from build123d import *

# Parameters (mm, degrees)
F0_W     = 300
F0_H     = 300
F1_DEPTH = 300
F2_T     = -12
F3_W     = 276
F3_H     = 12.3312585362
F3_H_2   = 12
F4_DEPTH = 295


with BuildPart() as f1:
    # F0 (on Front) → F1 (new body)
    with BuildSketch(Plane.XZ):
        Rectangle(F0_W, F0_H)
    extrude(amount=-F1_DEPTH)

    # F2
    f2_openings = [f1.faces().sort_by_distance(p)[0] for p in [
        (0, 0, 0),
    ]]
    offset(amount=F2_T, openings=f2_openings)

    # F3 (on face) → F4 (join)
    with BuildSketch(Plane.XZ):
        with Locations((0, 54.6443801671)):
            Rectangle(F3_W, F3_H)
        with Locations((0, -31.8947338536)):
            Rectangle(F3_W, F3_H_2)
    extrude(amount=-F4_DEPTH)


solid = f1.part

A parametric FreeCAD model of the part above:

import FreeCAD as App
import Part
import Sketcher
from FreeCAD import Vector
Q = App.Units.Quantity


def faces_at(feature, points):
    """Names of the faces that lie closest to the given points."""
    faces = feature.Shape.Faces
    near = lambda p: min(range(len(faces)), key=lambda i: faces[i].distToShape(Part.Vertex(*p))[0])
    return sorted({f"Face{near(p) + 1}" for p in points})


def add_polygon(sketch, points):
    """Adds a closed chain of lines whose ends are joined by coincident constraints."""
    first, n = sketch.GeometryCount, len(points)
    for a, b in zip(points, points[1:] + points[:1]):
        sketch.addGeometry(Part.LineSegment(App.Vector(*a, 0), App.Vector(*b, 0)), False)
    for i in range(n):
        sketch.addConstraint(Sketcher.Constraint("Coincident", first + i, 2, first + (i + 1) % n, 1))

doc = App.newDocument("Part")
params = doc.addObject("Spreadsheet::Sheet", "Params")
for row, (alias, value) in enumerate([
    ("sketch1_width", "300 mm"),
    ("pad1_length", "300 mm"),
    ("thickness_wall", "12 mm"),
    ("sketch2_width", "276 mm"),
    ("sketch2_height", "12 mm"),
    ("pad2_length", "295 mm"),
], start=1):
    params.set(f"A{row}", alias)
    params.set(f"B{row}", "=" + value)
    params.setAlias(f"B{row}", alias)

body = doc.addObject("PartDesign::Body", "Body")

sketch1 = doc.addObject("Sketcher::SketchObject", "Sketch")
body.addObject(sketch1)
sketch1.AttachmentSupport = (doc.XZ_Plane, [""])
sketch1.MapMode = "FlatFace"
add_polygon(sketch1, [(-150, 150), (-150, -150), (150, -150), (150, 150)])
sketch1.addConstraint(Sketcher.Constraint("Vertical", 0))
sketch1.addConstraint(Sketcher.Constraint("Horizontal", 1))
sketch1.addConstraint(Sketcher.Constraint("Vertical", 2))
sketch1.addConstraint(Sketcher.Constraint("Horizontal", 3))
sketch1.addConstraint(Sketcher.Constraint("Symmetric", 0, 2, 2, 2, -1, 1))
sketch1.addConstraint(Sketcher.Constraint("Equal", 3, 0))
sketch1.addConstraint(Sketcher.Constraint("DistanceX", 1, 1, 1, 2, Q("300 mm")))
sketch1.setExpression("Constraints[10]", "Params.sketch1_width")
pad1 = doc.addObject("PartDesign::Pad", "Pad")
body.addObject(pad1)
pad1.Profile = sketch1
pad1.setExpression("Length", "Params.pad1_length")
pad1.Reversed = True
doc.recompute()

thickness = doc.addObject("PartDesign::Thickness", "Thickness")
body.addObject(thickness)
thickness.Base = (pad1, faces_at(pad1, [(0, 0, 0)]))
thickness.setExpression("Value", "Params.thickness_wall")
thickness.Reversed = True
thickness.Join = "Arc"

sketch2 = doc.addObject("Sketcher::SketchObject", "Sketch001")
body.addObject(sketch2)
sketch2.AttachmentSupport = (doc.XZ_Plane, [""])
sketch2.MapMode = "FlatFace"
add_polygon(sketch2, [(-138, 61), (-138, 48), (138, 48), (138, 61)])
add_polygon(sketch2, [(-138, -26), (-138, -38), (138, -38), (138, -26)])
sketch2.addConstraint(Sketcher.Constraint("Vertical", 0))
sketch2.addConstraint(Sketcher.Constraint("Horizontal", 1))
sketch2.addConstraint(Sketcher.Constraint("Vertical", 2))
sketch2.addConstraint(Sketcher.Constraint("Horizontal", 3))
sketch2.addConstraint(Sketcher.Constraint("Vertical", 4))
sketch2.addConstraint(Sketcher.Constraint("Horizontal", 5))
sketch2.addConstraint(Sketcher.Constraint("Vertical", 6))
sketch2.addConstraint(Sketcher.Constraint("Horizontal", 7))
sketch2.addConstraint(Sketcher.Constraint("Vertical", 3, 2, 4, 2))
sketch2.addConstraint(Sketcher.Constraint("Vertical", 2, 2, 5, 2))
sketch2.addConstraint(Sketcher.Constraint("DistanceX", 1, 1, 1, 2, Q("276 mm")))
sketch2.addConstraint(Sketcher.Constraint("DistanceY", 4, 2, 4, 1, Q("12 mm")))
sketch2.addConstraint(Sketcher.Constraint("DistanceX", 0, 2, -1, 1, Q("138 mm")))
sketch2.addConstraint(Sketcher.Constraint("DistanceY", 0, 2, 0, 1, Q("12.331259 mm")))
sketch2.addConstraint(Sketcher.Constraint("DistanceY", -1, 1, 0, 2, Q("48.478751 mm")))
sketch2.addConstraint(Sketcher.Constraint("DistanceY", 4, 2, -1, 1, Q("37.894734 mm")))
sketch2.setExpression("Constraints[18]", "Params.sketch2_width")
sketch2.setExpression("Constraints[19]", "Params.sketch2_height")
pad2 = doc.addObject("PartDesign::Pad", "Pad001")
body.addObject(pad2)
pad2.Profile = sketch2
pad2.setExpression("Length", "Params.pad2_length")
pad2.Reversed = True

doc.recompute()
